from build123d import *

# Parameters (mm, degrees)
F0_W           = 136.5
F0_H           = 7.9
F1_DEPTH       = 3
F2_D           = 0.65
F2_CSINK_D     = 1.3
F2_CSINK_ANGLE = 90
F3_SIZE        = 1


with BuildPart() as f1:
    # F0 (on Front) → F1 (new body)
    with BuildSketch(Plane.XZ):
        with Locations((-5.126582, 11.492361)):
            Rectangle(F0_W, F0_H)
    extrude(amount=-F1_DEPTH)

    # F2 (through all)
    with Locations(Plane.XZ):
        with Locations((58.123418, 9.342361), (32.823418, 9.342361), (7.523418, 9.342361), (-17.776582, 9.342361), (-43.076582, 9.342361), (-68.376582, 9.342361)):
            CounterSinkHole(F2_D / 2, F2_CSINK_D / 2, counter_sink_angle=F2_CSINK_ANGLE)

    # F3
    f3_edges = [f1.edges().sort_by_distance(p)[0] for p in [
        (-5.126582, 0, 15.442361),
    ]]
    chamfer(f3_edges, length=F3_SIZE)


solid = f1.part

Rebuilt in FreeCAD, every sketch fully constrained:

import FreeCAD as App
import Part
import Sketcher
from FreeCAD import Vector
Q = App.Units.Quantity


def edges_at(feature, points):
    """Names of the edges that pass closest to the given points."""
    edges = feature.Shape.Edges
    near = lambda p: min(range(len(edges)), key=lambda i: edges[i].distToShape(Part.Vertex(*p))[0])
    return sorted({f"Edge{near(p) + 1}" for p in points})


def add_polygon(sketch, points):
    """Adds a closed chain of lines whose ends are joined by coincident constraints."""
    first, n = sketch.GeometryCount, len(points)
    for a, b in zip(points, points[1:] + points[:1]):
        sketch.addGeometry(Part.LineSegment(App.Vector(*a, 0), App.Vector(*b, 0)), False)
    for i in range(n):
        sketch.addConstraint(Sketcher.Constraint("Coincident", first + i, 2, first + (i + 1) % n, 1))

doc = App.newDocument("Part")
body = doc.addObject("PartDesign::Body", "Body")

sketch1 = body.newObject("Sketcher::SketchObject", "Sketch")
sketch1.AttachmentSupport = (doc.getObject("XZ_Plane"), [""])
sketch1.MapMode = "FlatFace"
add_polygon(sketch1, [(-73, 15), (-73, 8), (63, 8), (63, 15)])
sketch1.addConstraint(Sketcher.Constraint("Vertical", 0))
sketch1.addConstraint(Sketcher.Constraint("Horizontal", 1))
sketch1.addConstraint(Sketcher.Constraint("Vertical", 2))
sketch1.addConstraint(Sketcher.Constraint("Horizontal", 3))
sketch1.addConstraint(Sketcher.Constraint("DistanceX", 1, 1, 1, 2, Q("136.5 mm")))
sketch1.addConstraint(Sketcher.Constraint("DistanceY", 0, 2, 0, 1, Q("7.9 mm")))
sketch1.addConstraint(Sketcher.Constraint("DistanceX", 0, 2, -1, 1, Q("73.376582 mm")))
sketch1.addConstraint(Sketcher.Constraint("DistanceY", -1, 1, 0, 2, Q("7.542361 mm")))
pad1 = body.newObject("PartDesign::Pad", "Pad")
pad1.Profile = sketch1
pad1.Length = 3
pad1.Reversed = True

sketch2 = body.newObject("Sketcher::SketchObject", "Sketch001")
sketch2.AttachmentSupport = (doc.getObject("XZ_Plane"), [""])
sketch2.MapMode = "FlatFace"
sketch2.addGeometry(Part.Circle(Vector(58.12, 9.34, 0), Vector(0, 0, 1), 0.33), False)
sketch2.addGeometry(Part.Circle(Vector(32.82, 9.34, 0), Vector(0, 0, 1), 0.33), False)
sketch2.addGeometry(Part.Circle(Vector(7.52, 9.34, 0), Vector(0, 0, 1), 0.33), False)
sketch2.addGeometry(Part.Circle(Vector(-17.78, 9.34, 0), Vector(0, 0, 1), 0.33), False)
sketch2.addGeometry(Part.Circle(Vector(-43.08, 9.34, 0), Vector(0, 0, 1), 0.33), False)
sketch2.addGeometry(Part.Circle(Vector(-68.38, 9.34, 0), Vector(0, 0, 1), 0.33), False)
sketch2.addConstraint(Sketcher.Constraint("Equal", 0, 1))
sketch2.addConstraint(Sketcher.Constraint("Equal", 1, 2))
sketch2.addConstraint(Sketcher.Constraint("Equal", 2, 3))
sketch2.addConstraint(Sketcher.Constraint("Equal", 3, 4))
sketch2.addConstraint(Sketcher.Constraint("Equal", 4, 5))
sketch2.addConstraint(Sketcher.Constraint("Horizontal", 0, 3, 1, 3))
sketch2.addConstraint(Sketcher.Constraint("Horizontal", 1, 3, 2, 3))
sketch2.addConstraint(Sketcher.Constraint("Horizontal", 2, 3, 3, 3))
sketch2.addConstraint(Sketcher.Constraint("Horizontal", 3, 3, 4, 3))
sketch2.addConstraint(Sketcher.Constraint("Horizontal", 4, 3, 5, 3))
sketch2.addConstraint(Sketcher.Constraint("Diameter", 0, Q("0.65 mm")))
sketch2.addConstraint(Sketcher.Constraint("DistanceX", 1, 3, 0, 3, Q("25.3 mm")))
sketch2.addConstraint(Sketcher.Constraint("DistanceX", 2, 3, 1, 3, Q("25.3 mm")))
sketch2.addConstraint(Sketcher.Constraint("DistanceX", 3, 3, 2, 3, Q("25.3 mm")))
sketch2.addConstraint(Sketcher.Constraint("DistanceX", 4, 3, 3, 3, Q("25.3 mm")))
sketch2.addConstraint(Sketcher.Constraint("DistanceX", 5, 3, 4, 3, Q("25.3 mm")))
sketch2.addConstraint(Sketcher.Constraint("DistanceY", -1, 1, 0, 3, Q("9.342361 mm")))
sketch2.addConstraint(Sketcher.Constraint("DistanceX", -1, 1, 2, 3, Q("7.523418 mm")))
doc.recompute()
hole = body.newObject("PartDesign::Hole", "Hole")
hole.Profile = sketch2
hole.ThreadType = "None"
hole.Diameter = 0.65
hole.DepthType = "ThroughAll"
hole.HoleCutType = "Countersink"
hole.HoleCutDiameter = 1.3
hole.HoleCutCountersinkAngle = 90
doc.recompute()

chamfer = body.newObject("PartDesign::Chamfer", "Chamfer")
chamfer.Base = (hole, edges_at(hole, [(-5.127, 0, 15.442)]))
chamfer.Size = 1

doc.recompute()
